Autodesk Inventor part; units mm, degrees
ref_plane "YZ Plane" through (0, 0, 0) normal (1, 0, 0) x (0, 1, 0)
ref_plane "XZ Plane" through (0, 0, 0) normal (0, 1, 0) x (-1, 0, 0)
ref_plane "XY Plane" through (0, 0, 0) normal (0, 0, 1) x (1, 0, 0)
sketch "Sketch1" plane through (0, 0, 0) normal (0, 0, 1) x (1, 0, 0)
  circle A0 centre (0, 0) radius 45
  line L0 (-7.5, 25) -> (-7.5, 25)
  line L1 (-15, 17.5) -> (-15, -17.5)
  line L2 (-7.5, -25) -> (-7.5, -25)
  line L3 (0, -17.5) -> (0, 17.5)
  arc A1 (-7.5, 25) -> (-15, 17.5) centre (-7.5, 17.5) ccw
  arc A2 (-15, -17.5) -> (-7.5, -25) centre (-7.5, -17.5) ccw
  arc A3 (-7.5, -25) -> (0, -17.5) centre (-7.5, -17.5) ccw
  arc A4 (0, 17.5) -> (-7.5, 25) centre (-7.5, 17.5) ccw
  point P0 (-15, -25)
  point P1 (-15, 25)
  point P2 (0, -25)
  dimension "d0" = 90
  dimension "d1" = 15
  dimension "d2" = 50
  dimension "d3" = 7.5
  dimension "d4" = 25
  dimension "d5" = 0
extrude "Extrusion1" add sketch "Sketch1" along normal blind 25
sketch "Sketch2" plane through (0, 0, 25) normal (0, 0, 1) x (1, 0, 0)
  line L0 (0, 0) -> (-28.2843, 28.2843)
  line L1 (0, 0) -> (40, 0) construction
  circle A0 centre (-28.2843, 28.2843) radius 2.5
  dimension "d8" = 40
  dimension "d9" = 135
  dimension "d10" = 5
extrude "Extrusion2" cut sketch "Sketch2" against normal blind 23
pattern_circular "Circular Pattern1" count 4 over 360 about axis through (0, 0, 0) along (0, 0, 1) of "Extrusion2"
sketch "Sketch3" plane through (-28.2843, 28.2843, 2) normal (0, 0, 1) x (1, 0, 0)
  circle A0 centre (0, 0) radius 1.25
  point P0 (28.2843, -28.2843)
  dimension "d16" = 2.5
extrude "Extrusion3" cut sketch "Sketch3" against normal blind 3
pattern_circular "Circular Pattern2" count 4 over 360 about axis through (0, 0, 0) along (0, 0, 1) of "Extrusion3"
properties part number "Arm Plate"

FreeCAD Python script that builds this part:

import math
import FreeCAD as App
import Part
import Sketcher

V = App.Vector

doc = App.newDocument("Part")
body = doc.addObject("PartDesign::Body", "Body")

# Sketch on XY plane
sketch1 = body.newObject("Sketcher::SketchObject", "Sketch")
sketch1.AttachmentSupport = (doc.getObject("XY_Plane"), [""])
sketch1.MapMode = "FlatFace"
sketch1.addGeometry([
    Part.Circle(V(0, 0, 0), V(0, 0, 1), 45),  # 0
    Part.LineSegment(V(-15, -18, 0), V(-15, 18, 0)),  # 1
    Part.ArcOfCircle(Part.Circle(V(-8, 18, 0), V(0, 0, 1), 8), math.radians(0), math.radians(180)),  # 2
    Part.LineSegment(V(0, 18, 0), V(0, -18, 0)),  # 3
    Part.ArcOfCircle(Part.Circle(V(-8, -18, 0), V(0, 0, 1), 8), math.radians(180), math.radians(360)),  # 4
], False)
sketch1.addConstraint([
    Sketcher.Constraint("Tangent", 1, 2, 2, 2),
    Sketcher.Constraint("Tangent", 2, 1, 3, 1),
    Sketcher.Constraint("Tangent", 3, 2, 4, 2),
    Sketcher.Constraint("Tangent", 4, 1, 1, 1),
    Sketcher.Constraint("Vertical", 1),
    Sketcher.Constraint("Vertical", 3),
    Sketcher.Constraint("Coincident", 0, 3, -1, 1),
    Sketcher.Constraint("Symmetric", 2, 1, 3, 2, -1, 1),
    Sketcher.Constraint("Diameter", 0, 90.0),
    Sketcher.Constraint("Radius", 2, 7.5),
    Sketcher.Constraint("DistanceY", 1, 1, 1, 2, 35.0),
])
pad1 = body.newObject("PartDesign::Pad", "Pad")
pad1.Profile = sketch1
pad1.Length = 25

# Sketch on XY plane
sketch2 = body.newObject("Sketcher::SketchObject", "Sketch001")
sketch2.AttachmentSupport = (doc.getObject("XY_Plane"), [""])
sketch2.MapMode = "FlatFace"
sketch2.AttachmentOffset = App.Placement(V(0, 0, 25), App.Rotation())
sketch2.addGeometry(Part.Circle(V(-28.3, 28.3, 0), V(0, 0, 1), 2.5), False)
sketch2.addConstraint([
    Sketcher.Constraint("Diameter", 0, 5.0),
    Sketcher.Constraint("DistanceX", 0, 3, -1, 1, 28.2843),
    Sketcher.Constraint("DistanceY", -1, 1, 0, 3, 28.2843),
])
pocket1 = body.newObject("PartDesign::Pocket", "Pocket")
pocket1.Profile = sketch2
pocket1.Length = 23
doc.recompute()

polarpattern = body.newObject("PartDesign::PolarPattern", "PolarPattern")
polarpattern.Originals = [pocket1]
polarpattern.Axis = (doc.getObject("Z_Axis"), [""])
polarpattern.Angle = 360
polarpattern.Occurrences = 4
body.Tip = polarpattern

# Sketch on XY plane
sketch3 = body.newObject("Sketcher::SketchObject", "Sketch002")
sketch3.AttachmentSupport = (doc.getObject("XY_Plane"), [""])
sketch3.MapMode = "FlatFace"
sketch3.AttachmentOffset = App.Placement(V(0, 0, 2), App.Rotation())
sketch3.addGeometry(Part.Circle(V(-28.3, 28.3, 0), V(0, 0, 1), 1.2), False)
sketch3.addConstraint([
    Sketcher.Constraint("Diameter", 0, 2.5),
    Sketcher.Constraint("DistanceX", 0, 3, -1, 1, 28.2843),
    Sketcher.Constraint("DistanceY", -1, 1, 0, 3, 28.2843),
])
pocket2 = body.newObject("PartDesign::Pocket", "Pocket001")
pocket2.Profile = sketch3
pocket2.Length = 3
doc.recompute()

polarpattern2 = body.newObject("PartDesign::PolarPattern", "PolarPattern001")
polarpattern2.Originals = [pocket2]
polarpattern2.Axis = (doc.getObject("Z_Axis"), [""])
polarpattern2.Angle = 360
polarpattern2.Occurrences = 4
body.Tip = polarpattern2

doc.recompute()
